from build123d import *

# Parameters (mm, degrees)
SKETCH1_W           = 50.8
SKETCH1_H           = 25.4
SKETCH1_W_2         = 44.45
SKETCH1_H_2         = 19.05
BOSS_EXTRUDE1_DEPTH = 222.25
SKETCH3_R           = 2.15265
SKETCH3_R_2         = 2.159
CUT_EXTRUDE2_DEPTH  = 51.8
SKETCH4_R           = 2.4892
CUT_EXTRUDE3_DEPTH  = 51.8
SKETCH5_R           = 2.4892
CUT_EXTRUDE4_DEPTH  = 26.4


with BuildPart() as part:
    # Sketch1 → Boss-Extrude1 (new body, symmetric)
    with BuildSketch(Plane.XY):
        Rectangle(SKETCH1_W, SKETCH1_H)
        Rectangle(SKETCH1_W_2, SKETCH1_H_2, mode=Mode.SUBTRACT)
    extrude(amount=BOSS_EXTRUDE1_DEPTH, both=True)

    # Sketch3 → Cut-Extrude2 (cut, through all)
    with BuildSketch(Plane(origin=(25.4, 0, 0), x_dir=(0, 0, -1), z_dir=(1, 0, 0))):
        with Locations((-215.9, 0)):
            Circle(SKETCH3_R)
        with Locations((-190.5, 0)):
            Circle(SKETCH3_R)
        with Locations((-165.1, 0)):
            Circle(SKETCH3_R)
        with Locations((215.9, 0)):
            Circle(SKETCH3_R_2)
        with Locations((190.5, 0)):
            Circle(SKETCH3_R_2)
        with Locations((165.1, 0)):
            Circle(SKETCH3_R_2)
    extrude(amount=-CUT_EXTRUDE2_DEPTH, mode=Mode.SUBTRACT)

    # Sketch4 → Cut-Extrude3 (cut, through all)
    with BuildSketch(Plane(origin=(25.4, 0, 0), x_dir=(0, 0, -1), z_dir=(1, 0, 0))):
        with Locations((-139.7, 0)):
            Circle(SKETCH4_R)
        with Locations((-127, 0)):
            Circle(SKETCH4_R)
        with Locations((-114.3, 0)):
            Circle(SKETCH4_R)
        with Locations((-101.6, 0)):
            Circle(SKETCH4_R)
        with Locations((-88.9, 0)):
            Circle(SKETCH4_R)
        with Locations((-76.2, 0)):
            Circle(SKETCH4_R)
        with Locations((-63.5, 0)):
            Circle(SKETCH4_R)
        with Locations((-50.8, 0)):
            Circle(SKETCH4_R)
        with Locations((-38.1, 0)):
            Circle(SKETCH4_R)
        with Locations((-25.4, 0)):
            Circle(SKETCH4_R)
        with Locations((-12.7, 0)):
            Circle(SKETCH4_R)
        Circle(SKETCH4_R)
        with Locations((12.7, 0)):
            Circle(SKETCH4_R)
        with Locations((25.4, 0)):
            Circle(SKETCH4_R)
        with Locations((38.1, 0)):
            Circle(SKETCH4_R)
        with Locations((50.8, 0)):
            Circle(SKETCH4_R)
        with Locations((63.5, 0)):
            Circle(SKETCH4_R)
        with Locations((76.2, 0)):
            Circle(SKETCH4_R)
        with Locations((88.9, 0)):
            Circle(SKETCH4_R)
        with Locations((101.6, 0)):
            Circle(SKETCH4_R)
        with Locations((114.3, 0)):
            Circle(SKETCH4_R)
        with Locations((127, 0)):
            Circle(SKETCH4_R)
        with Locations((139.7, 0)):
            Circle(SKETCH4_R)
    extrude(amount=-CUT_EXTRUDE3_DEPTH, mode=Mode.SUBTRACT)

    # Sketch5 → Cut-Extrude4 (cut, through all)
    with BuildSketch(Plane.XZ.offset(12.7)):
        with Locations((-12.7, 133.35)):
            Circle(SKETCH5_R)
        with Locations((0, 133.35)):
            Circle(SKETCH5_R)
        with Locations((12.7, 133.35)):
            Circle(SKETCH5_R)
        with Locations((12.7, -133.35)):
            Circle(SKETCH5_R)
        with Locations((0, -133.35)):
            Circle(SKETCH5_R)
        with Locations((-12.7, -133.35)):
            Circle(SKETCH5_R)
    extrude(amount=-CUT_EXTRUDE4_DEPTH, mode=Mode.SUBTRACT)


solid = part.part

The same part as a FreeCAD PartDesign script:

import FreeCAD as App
import Part
import Sketcher
Q = App.Units.Quantity


def add_polygon(sketch, points):
    """Adds a closed chain of lines whose ends are joined by coincident constraints."""
    first, n = sketch.GeometryCount, len(points)
    for a, b in zip(points, points[1:] + points[:1]):
        sketch.addGeometry(Part.LineSegment(App.Vector(*a, 0), App.Vector(*b, 0)), False)
    for i in range(n):
        sketch.addConstraint(Sketcher.Constraint("Coincident", first + i, 2, first + (i + 1) % n, 1))

doc = App.newDocument("Part")
body = doc.addObject("PartDesign::Body", "Body")

# Sketch on XY plane
sketch1 = doc.addObject("Sketcher::SketchObject", "Sketch")
body.addObject(sketch1)
sketch1.AttachmentSupport = (doc.XY_Plane, [""])
sketch1.MapMode = "FlatFace"
add_polygon(sketch1, [(-25, 13), (-25, -13), (25, -13), (25, 13)])  # lines 0-3
add_polygon(sketch1, [(22, -10), (-22, -10), (-22, 10), (22, 10)])  # lines 4-7
sketch1.addConstraint([
    Sketcher.Constraint("Vertical", 0),
    Sketcher.Constraint("Horizontal", 1),
    Sketcher.Constraint("Vertical", 2),
    Sketcher.Constraint("Horizontal", 3),
    Sketcher.Constraint("Horizontal", 4),
    Sketcher.Constraint("Vertical", 5),
    Sketcher.Constraint("Horizontal", 6),
    Sketcher.Constraint("Vertical", 7),
    Sketcher.Constraint("Symmetric", 0, 2, 2, 2, -1, 1),
    Sketcher.Constraint("Symmetric", 4, 2, 6, 2, -1, 1),
    Sketcher.Constraint("DistanceX", 1, 1, 1, 2, Q("2 in")),
    Sketcher.Constraint("DistanceY", 0, 2, 0, 1, Q("1 in")),
    Sketcher.Constraint("DistanceX", 4, 2, 4, 1, Q("1.75 in")),
    Sketcher.Constraint("DistanceY", 5, 1, 5, 2, Q("0.75 in")),
])
pad1 = doc.addObject("PartDesign::Pad", "Pad")
body.addObject(pad1)
pad1.Profile = sketch1
pad1.Length = Q("17.5 in")
pad1.Midplane = True

# Sketch on YZ plane
sketch2 = doc.addObject("Sketcher::SketchObject", "Sketch001")
body.addObject(sketch2)
sketch2.AttachmentSupport = (doc.YZ_Plane, [""])
sketch2.MapMode = "FlatFace"
sketch2.AttachmentOffset = App.Placement(App.Vector(0, 0, 1 * 25.4), App.Rotation())
sketch2.addGeometry([
    Part.Circle(App.Vector(0, 215.9, 0), App.Vector(0, 0, 1), 2.2),  # 0
    Part.Circle(App.Vector(0, 190.5, 0), App.Vector(0, 0, 1), 2.2),  # 1
    Part.Circle(App.Vector(0, 165.1, 0), App.Vector(0, 0, 1), 2.2),  # 2
    Part.Circle(App.Vector(0, -215.9, 0), App.Vector(0, 0, 1), 2.2),  # 3
    Part.Circle(App.Vector(0, -190.5, 0), App.Vector(0, 0, 1), 2.2),  # 4
    Part.Circle(App.Vector(0, -165.1, 0), App.Vector(0, 0, 1), 2.2),  # 5
], False)
sketch2.addConstraint([
    Sketcher.Constraint("Equal", 0, 1),
    Sketcher.Constraint("Equal", 1, 2),
    Sketcher.Constraint("Equal", 3, 4),
    Sketcher.Constraint("Equal", 4, 5),
    Sketcher.Constraint("Symmetric", 0, 3, 3, 3, -1, 1),
    Sketcher.Constraint("Symmetric", 1, 3, 4, 3, -1, 1),
    Sketcher.Constraint("Symmetric", 2, 3, 5, 3, -1, 1),
    Sketcher.Constraint("PointOnObject", 0, 3, -2),
    Sketcher.Constraint("PointOnObject", 1, 3, -2),
    Sketcher.Constraint("PointOnObject", 2, 3, -2),
    Sketcher.Constraint("Diameter", 3, Q("0.17 in")),
    Sketcher.Constraint("DistanceY", 1, 3, 0, 3, Q("1 in")),
    Sketcher.Constraint("DistanceY", 2, 3, 1, 3, Q("1 in")),
    Sketcher.Constraint("DistanceY", 3, 3, 2, 3, Q("15 in")),
    Sketcher.Constraint("Diameter", 0, Q("0.1695 in")),
])
pocket1 = doc.addObject("PartDesign::Pocket", "Pocket")
body.addObject(pocket1)
pocket1.Profile = sketch2
pocket1.Type = "ThroughAll"

# Sketch on YZ plane
sketch3 = doc.addObject("Sketcher::SketchObject", "Sketch002")
body.addObject(sketch3)
sketch3.AttachmentSupport = (doc.YZ_Plane, [""])
sketch3.MapMode = "FlatFace"
sketch3.AttachmentOffset = App.Placement(App.Vector(0, 0, 1 * 25.4), App.Rotation())
sketch3.addGeometry([
    Part.Circle(App.Vector(0, 139.7, 0), App.Vector(0, 0, 1), 2.5),  # 0
    Part.Circle(App.Vector(0, 127, 0), App.Vector(0, 0, 1), 2.5),  # 1
    Part.Circle(App.Vector(0, 114.3, 0), App.Vector(0, 0, 1), 2.5),  # 2
    Part.Circle(App.Vector(0, 101.6, 0), App.Vector(0, 0, 1), 2.5),  # 3
    Part.Circle(App.Vector(0, 88.9, 0), App.Vector(0, 0, 1), 2.5),  # 4
    Part.Circle(App.Vector(0, 76.2, 0), App.Vector(0, 0, 1), 2.5),  # 5
    Part.Circle(App.Vector(0, 63.5, 0), App.Vector(0, 0, 1), 2.5),  # 6
    Part.Circle(App.Vector(0, 50.8, 0), App.Vector(0, 0, 1), 2.5),  # 7
    Part.Circle(App.Vector(0, 38.1, 0), App.Vector(0, 0, 1), 2.5),  # 8
    Part.Circle(App.Vector(0, 25.4, 0), App.Vector(0, 0, 1), 2.5),  # 9
    Part.Circle(App.Vector(0, 12.7, 0), App.Vector(0, 0, 1), 2.5),  # 10
    Part.Circle(App.Vector(0, 0, 0), App.Vector(0, 0, 1), 2.5),  # 11
    Part.Circle(App.Vector(0, -12.7, 0), App.Vector(0, 0, 1), 2.5),  # 12
    Part.Circle(App.Vector(0, -25.4, 0), App.Vector(0, 0, 1), 2.5),  # 13
    Part.Circle(App.Vector(0, -38.1, 0), App.Vector(0, 0, 1), 2.5),  # 14
    Part.Circle(App.Vector(0, -50.8, 0), App.Vector(0, 0, 1), 2.5),  # 15
    Part.Circle(App.Vector(0, -63.5, 0), App.Vector(0, 0, 1), 2.5),  # 16
    Part.Circle(App.Vector(0, -76.2, 0), App.Vector(0, 0, 1), 2.5),  # 17
    Part.Circle(App.Vector(0, -88.9, 0), App.Vector(0, 0, 1), 2.5),  # 18
    Part.Circle(App.Vector(0, -101.6, 0), App.Vector(0, 0, 1), 2.5),  # 19
    Part.Circle(App.Vector(0, -114.3, 0), App.Vector(0, 0, 1), 2.5),  # 20
    Part.Circle(App.Vector(0, -127, 0), App.Vector(0, 0, 1), 2.5),  # 21
    Part.Circle(App.Vector(0, -139.7, 0), App.Vector(0, 0, 1), 2.5),  # 22
], False)
sketch3.addConstraint([
    Sketcher.Constraint("Coincident", 11, 3, -1, 1),
    Sketcher.Constraint("Equal", 0, 1),
    Sketcher.Constraint("Equal", 1, 2),
    Sketcher.Constraint("Equal", 2, 3),
    Sketcher.Constraint("Equal", 3, 4),
    Sketcher.Constraint("Equal", 4, 5),
    Sketcher.Constraint("Equal", 5, 6),
    Sketcher.Constraint("Equal", 6, 7),
    Sketcher.Constraint("Equal", 7, 8),
    Sketcher.Constraint("Equal", 8, 9),
    Sketcher.Constraint("Equal", 9, 10),
    Sketcher.Constraint("Equal", 10, 11),
    Sketcher.Constraint("Equal", 11, 12),
    Sketcher.Constraint("Equal", 12, 13),
    Sketcher.Constraint("Equal", 13, 14),
    Sketcher.Constraint("Equal", 14, 15),
    Sketcher.Constraint("Equal", 15, 16),
    Sketcher.Constraint("Equal", 16, 17),
    Sketcher.Constraint("Equal", 17, 18),
    Sketcher.Constraint("Equal", 18, 19),
    Sketcher.Constraint("Equal", 19, 20),
    Sketcher.Constraint("Equal", 20, 21),
    Sketcher.Constraint("Equal", 21, 22),
    Sketcher.Constraint("Symmetric", 10, 3, 12, 3, -1, 1),
    Sketcher.Constraint("Symmetric", 9, 3, 13, 3, -1, 1),
    Sketcher.Constraint("Symmetric", 8, 3, 14, 3, -1, 1),
    Sketcher.Constraint("Symmetric", 7, 3, 15, 3, -1, 1),
    Sketcher.Constraint("Symmetric", 6, 3, 16, 3, -1, 1),
    Sketcher.Constraint("Symmetric", 5, 3, 17, 3, -1, 1),
    Sketcher.Constraint("Symmetric", 4, 3, 18, 3, -1, 1),
    Sketcher.Constraint("Symmetric", 3, 3, 19, 3, -1, 1),
    Sketcher.Constraint("Symmetric", 2, 3, 20, 3, -1, 1),
    Sketcher.Constraint("Symmetric", 1, 3, 21, 3, -1, 1),
    Sketcher.Constraint("Symmetric", 0, 3, 22, 3, -1, 1),
    Sketcher.Constraint("PointOnObject", 0, 3, -2),
    Sketcher.Constraint("PointOnObject", 1, 3, -2),
    Sketcher.Constraint("PointOnObject", 2, 3, -2),
    Sketcher.Constraint("PointOnObject", 3, 3, -2),
    Sketcher.Constraint("PointOnObject", 4, 3, -2),
    Sketcher.Constraint("PointOnObject", 5, 3, -2),
    Sketcher.Constraint("PointOnObject", 6, 3, -2),
    Sketcher.Constraint("PointOnObject", 7, 3, -2),
    Sketcher.Constraint("PointOnObject", 8, 3, -2),
    Sketcher.Constraint("PointOnObject", 9, 3, -2),
    Sketcher.Constraint("PointOnObject", 10, 3, -2),
    Sketcher.Constraint("Diameter", 0, Q("0.196 in")),
    Sketcher.Constraint("DistanceY", -1, 1, 1, 3, Q("5 in")),
    Sketcher.Constraint("DistanceY", -1, 1, 3, 3, Q("4 in")),
    Sketcher.Constraint("DistanceY", -1, 1, 5, 3, Q("3 in")),
    Sketcher.Constraint("DistanceY", -1, 1, 7, 3, Q("2 in")),
    Sketcher.Constraint("DistanceY", -1, 1, 9, 3, Q("1 in")),
    Sketcher.Constraint("DistanceY", 2, 3, 0, 3, Q("1 in")),
    Sketcher.Constraint("DistanceY", 4, 3, 2, 3, Q("1 in")),
    Sketcher.Constraint("DistanceY", 6, 3, 4, 3, Q("1 in")),
    Sketcher.Constraint("DistanceY", 8, 3, 6, 3, Q("1 in")),
    Sketcher.Constraint("DistanceY", 10, 3, 8, 3, Q("1 in")),
    Sketcher.Constraint("DistanceY", 12, 3, 10, 3, Q("1 in")),
])
pocket2 = doc.addObject("PartDesign::Pocket", "Pocket001")
body.addObject(pocket2)
pocket2.Profile = sketch3
pocket2.Type = "ThroughAll"

# Sketch on XZ plane
sketch4 = doc.addObject("Sketcher::SketchObject", "Sketch003")
body.addObject(sketch4)
sketch4.AttachmentSupport = (doc.XZ_Plane, [""])
sketch4.MapMode = "FlatFace"
sketch4.AttachmentOffset = App.Placement(App.Vector(0, 0, 0.5 * 25.4), App.Rotation())
sketch4.addGeometry([
    Part.Circle(App.Vector(-12.7, 133.3, 0), App.Vector(0, 0, 1), 2.5),  # 0
    Part.Circle(App.Vector(0, 133.3, 0), App.Vector(0, 0, 1), 2.5),  # 1
    Part.Circle(App.Vector(12.7, 133.3, 0), App.Vector(0, 0, 1), 2.5),  # 2
    Part.Circle(App.Vector(12.7, -133.3, 0), App.Vector(0, 0, 1), 2.5),  # 3
    Part.Circle(App.Vector(0, -133.3, 0), App.Vector(0, 0, 1), 2.5),  # 4
    Part.Circle(App.Vector(-12.7, -133.3, 0), App.Vector(0, 0, 1), 2.5),  # 5
], False)
sketch4.addConstraint([
    Sketcher.Constraint("Equal", 0, 1),
    Sketcher.Constraint("Equal", 1, 2),
    Sketcher.Constraint("Equal", 2, 3),
    Sketcher.Constraint("Equal", 3, 4),
    Sketcher.Constraint("Equal", 4, 5),
    Sketcher.Constraint("Symmetric", 0, 3, 3, 3, -1, 1),
    Sketcher.Constraint("Symmetric", 1, 3, 4, 3, -1, 1),
    Sketcher.Constraint("Symmetric", 2, 3, 5, 3, -1, 1),
    Sketcher.Constraint("Symmetric", 0, 3, 2, 3, -2),
    Sketcher.Constraint("PointOnObject", 1, 3, -2),
    Sketcher.Constraint("Horizontal", 0, 3, 1, 3),
    Sketcher.Constraint("Diameter", 0, Q("0.196 in")),
    Sketcher.Constraint("DistanceX", 0, 3, 2, 3, Q("1 in")),
    Sketcher.Constraint("DistanceY", 3, 3, 2, 3, Q("10.5 in")),
])
pocket3 = doc.addObject("PartDesign::Pocket", "Pocket002")
body.addObject(pocket3)
pocket3.Profile = sketch4
pocket3.Type = "ThroughAll"

doc.recompute()
